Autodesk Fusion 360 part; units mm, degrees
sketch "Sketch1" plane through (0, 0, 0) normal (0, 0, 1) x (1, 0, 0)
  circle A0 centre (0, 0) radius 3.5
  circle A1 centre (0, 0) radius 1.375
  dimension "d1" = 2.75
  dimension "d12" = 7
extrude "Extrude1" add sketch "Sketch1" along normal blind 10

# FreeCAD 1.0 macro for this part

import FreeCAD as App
import Part
import Sketcher
from FreeCAD import Vector
Q = App.Units.Quantity

doc = App.newDocument("Part")
body = doc.addObject("PartDesign::Body", "Body")

sketch1 = body.newObject("Sketcher::SketchObject", "Sketch")
sketch1.AttachmentSupport = (doc.getObject("XY_Plane"), [""])
sketch1.MapMode = "FlatFace"
sketch1.addGeometry([
    Part.Circle(Vector(0, 0, 0), Vector(0, 0, 1), 3.5),
    Part.Circle(Vector(0, 0, 0), Vector(0, 0, 1), 1.375),
], False)
sketch1.addConstraint([
    Sketcher.Constraint("Coincident", 0, 3, -1, 1),
    Sketcher.Constraint("Coincident", 1, 3, -1, 1),
    Sketcher.Constraint("Diameter", 0, Q("7 mm")),
    Sketcher.Constraint("Diameter", 1, Q("2.75 mm")),
])
pad1 = body.newObject("PartDesign::Pad", "Pad")
pad1.Profile = sketch1
pad1.Length = 10

doc.recompute()
